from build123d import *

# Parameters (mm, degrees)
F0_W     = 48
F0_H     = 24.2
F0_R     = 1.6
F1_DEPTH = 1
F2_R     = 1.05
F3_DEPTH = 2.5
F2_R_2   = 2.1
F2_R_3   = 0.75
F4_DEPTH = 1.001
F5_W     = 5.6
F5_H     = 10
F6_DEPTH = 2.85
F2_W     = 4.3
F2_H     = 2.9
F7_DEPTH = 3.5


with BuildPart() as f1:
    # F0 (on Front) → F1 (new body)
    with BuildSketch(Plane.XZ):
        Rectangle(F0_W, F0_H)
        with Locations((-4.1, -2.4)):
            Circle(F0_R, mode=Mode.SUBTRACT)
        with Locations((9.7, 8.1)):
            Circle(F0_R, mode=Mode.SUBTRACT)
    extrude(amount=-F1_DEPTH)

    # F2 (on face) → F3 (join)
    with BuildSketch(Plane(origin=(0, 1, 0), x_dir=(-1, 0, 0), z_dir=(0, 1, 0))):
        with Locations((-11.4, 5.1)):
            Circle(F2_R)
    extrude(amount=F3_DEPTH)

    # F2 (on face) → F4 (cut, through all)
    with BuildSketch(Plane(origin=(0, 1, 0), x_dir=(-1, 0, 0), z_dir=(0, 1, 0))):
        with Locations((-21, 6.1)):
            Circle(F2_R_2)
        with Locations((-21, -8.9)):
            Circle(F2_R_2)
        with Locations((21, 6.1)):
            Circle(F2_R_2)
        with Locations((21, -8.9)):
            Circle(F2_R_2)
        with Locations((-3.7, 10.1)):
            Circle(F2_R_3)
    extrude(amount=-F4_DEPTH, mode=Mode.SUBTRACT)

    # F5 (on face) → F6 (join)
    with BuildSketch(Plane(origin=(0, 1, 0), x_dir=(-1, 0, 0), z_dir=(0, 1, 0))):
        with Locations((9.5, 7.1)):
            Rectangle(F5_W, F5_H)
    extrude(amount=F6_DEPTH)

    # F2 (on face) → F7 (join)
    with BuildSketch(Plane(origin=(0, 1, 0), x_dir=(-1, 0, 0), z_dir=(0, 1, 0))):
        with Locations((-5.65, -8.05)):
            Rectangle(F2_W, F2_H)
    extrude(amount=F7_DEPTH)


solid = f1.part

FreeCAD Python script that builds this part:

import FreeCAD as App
import Part
import Sketcher
from FreeCAD import Vector


def add_polygon(sketch, points):
    """Adds a closed chain of lines whose ends are joined by coincident constraints."""
    first, n = sketch.GeometryCount, len(points)
    for a, b in zip(points, points[1:] + points[:1]):
        sketch.addGeometry(Part.LineSegment(App.Vector(*a, 0), App.Vector(*b, 0)), False)
    for i in range(n):
        sketch.addConstraint(Sketcher.Constraint("Coincident", first + i, 2, first + (i + 1) % n, 1))

doc = App.newDocument("Part")
params = doc.addObject("Spreadsheet::Sheet", "Params")
for row, (alias, value) in enumerate([
    ("sketch1_diameter", "3.2 mm"),
    ("sketch1_width", "48 mm"),
    ("sketch1_height", "24.2 mm"),
    ("pad1_length", "1 mm"),
    ("sketch2_diameter", "2.1 mm"),
    ("pad2_length", "2.5 mm"),
    ("sketch3_diameter", "4.2 mm"),
    ("sketch3_diameter2", "1.5 mm"),
    ("sketch4_height", "10 mm"),
    ("sketch4_width", "5.6 mm"),
    ("pad3_length", "2.85 mm"),
    ("sketch5_width", "4.3 mm"),
    ("sketch5_height", "2.9 mm"),
    ("pad4_length", "3.5 mm"),
], start=1):
    params.set(f"A{row}", alias)
    params.set(f"B{row}", "=" + value)
    params.setAlias(f"B{row}", alias)

body = doc.addObject("PartDesign::Body", "Body")

# Sketch on XZ plane
sketch1 = doc.addObject("Sketcher::SketchObject", "Sketch")
body.addObject(sketch1)
sketch1.AttachmentSupport = (doc.XZ_Plane, [""])
sketch1.MapMode = "FlatFace"
add_polygon(sketch1, [(-24, 12.1), (-24, -12.1), (24, -12.1), (24, 12.1)])  # lines 0-3
sketch1.addGeometry(Part.Circle(Vector(-4.1, -2.4, 0), Vector(0, 0, 1), 1.6), False)  # 4
sketch1.addGeometry(Part.Circle(Vector(9.7, 8.1, 0), Vector(0, 0, 1), 1.6), False)  # 5
sketch1.addConstraint([
    Sketcher.Constraint("Vertical", 0),
    Sketcher.Constraint("Horizontal", 1),
    Sketcher.Constraint("Vertical", 2),
    Sketcher.Constraint("Horizontal", 3),
    Sketcher.Constraint("Equal", 4, 5),
    Sketcher.Constraint("Symmetric", 0, 2, 2, 2, -1, 1),
    Sketcher.Constraint("Diameter", 4, 3.2),
    Sketcher.Constraint("DistanceX", 1, 1, 1, 2, 48.0),
    Sketcher.Constraint("DistanceY", 0, 2, 0, 1, 24.2),
    Sketcher.Constraint("DistanceY", 5, 3, 2, 2, 4.0),
    Sketcher.Constraint("DistanceX", 4, 3, -1, 1, 4.1),
    Sketcher.Constraint("DistanceY", 4, 3, -1, 1, 2.4),
    Sketcher.Constraint("DistanceX", -1, 1, 5, 3, 9.7),
])
sketch1.setExpression("Constraints[10]", "Params.sketch1_diameter")
sketch1.setExpression("Constraints[11]", "Params.sketch1_width")
sketch1.setExpression("Constraints[12]", "Params.sketch1_height")
pad1 = doc.addObject("PartDesign::Pad", "Pad")
body.addObject(pad1)
pad1.Profile = sketch1
pad1.setExpression("Length", "Params.pad1_length")
pad1.Reversed = True

# Sketch on XZ plane
sketch2 = doc.addObject("Sketcher::SketchObject", "Sketch001")
body.addObject(sketch2)
sketch2.AttachmentSupport = (doc.XZ_Plane, [""])
sketch2.MapMode = "FlatFace"
sketch2.AttachmentOffset = App.Placement(Vector(0, 0, -1), App.Rotation())
sketch2.addGeometry(Part.Circle(Vector(11.4, 5.1, 0), Vector(0, 0, 1), 1.1), False)
sketch2.addConstraint([
    Sketcher.Constraint("Diameter", 0, 2.1),
    Sketcher.Constraint("DistanceX", -1, 1, 0, 3, 11.4),
    Sketcher.Constraint("DistanceY", -1, 1, 0, 3, 5.1),
])
sketch2.setExpression("Constraints[0]", "Params.sketch2_diameter")
pad2 = doc.addObject("PartDesign::Pad", "Pad001")
body.addObject(pad2)
pad2.Profile = sketch2
pad2.setExpression("Length", "Params.pad2_length")
pad2.Reversed = True

# Sketch on XZ plane
sketch3 = doc.addObject("Sketcher::SketchObject", "Sketch002")
body.addObject(sketch3)
sketch3.AttachmentSupport = (doc.XZ_Plane, [""])
sketch3.MapMode = "FlatFace"
sketch3.AttachmentOffset = App.Placement(Vector(0, 0, -1), App.Rotation())
sketch3.addGeometry([
    Part.Circle(Vector(21, 6.1, 0), Vector(0, 0, 1), 2.1),  # 0
    Part.Circle(Vector(21, -8.9, 0), Vector(0, 0, 1), 2.1),  # 1
    Part.Circle(Vector(-21, 6.1, 0), Vector(0, 0, 1), 2.1),  # 2
    Part.Circle(Vector(-21, -8.9, 0), Vector(0, 0, 1), 2.1),  # 3
    Part.Circle(Vector(3.7, 10.1, 0), Vector(0, 0, 1), 0.8),  # 4
], False)
sketch3.addConstraint([
    Sketcher.Constraint("Equal", 0, 1),
    Sketcher.Constraint("Equal", 1, 2),
    Sketcher.Constraint("Equal", 2, 3),
    Sketcher.Constraint("Symmetric", 0, 3, 2, 3, -2),
    Sketcher.Constraint("Symmetric", 1, 3, 3, 3, -2),
    Sketcher.Constraint("Vertical", 0, 3, 1, 3),
    Sketcher.Constraint("Diameter", 0, 4.2),
    Sketcher.Constraint("Diameter", 4, 1.5),
    Sketcher.Constraint("DistanceX", -1, 1, 0, 3, 21.0),
    Sketcher.Constraint("DistanceY", 1, 3, 0, 3, 15.0),
    Sketcher.Constraint("DistanceY", 0, 3, 4, 3, 4.0),
    Sketcher.Constraint("DistanceY", -1, 1, 0, 3, 6.1),
    Sketcher.Constraint("DistanceX", -1, 1, 4, 3, 3.7),
])
sketch3.setExpression("Constraints[6]", "Params.sketch3_diameter")
sketch3.setExpression("Constraints[7]", "Params.sketch3_diameter2")
pocket1 = doc.addObject("PartDesign::Pocket", "Pocket")
body.addObject(pocket1)
pocket1.Profile = sketch3
pocket1.Type = "ThroughAll"
pocket1.Reversed = True

# Sketch on XZ plane
sketch4 = doc.addObject("Sketcher::SketchObject", "Sketch003")
body.addObject(sketch4)
sketch4.AttachmentSupport = (doc.XZ_Plane, [""])
sketch4.MapMode = "FlatFace"
sketch4.AttachmentOffset = App.Placement(Vector(0, 0, -1), App.Rotation())
add_polygon(sketch4, [(-7, 12), (-7, 2), (-12, 2), (-12, 12)])  # lines 0-3
sketch4.addConstraint([
    Sketcher.Constraint("Vertical", 0),
    Sketcher.Constraint("Horizontal", 1),
    Sketcher.Constraint("Vertical", 2),
    Sketcher.Constraint("Horizontal", 3),
    Sketcher.Constraint("DistanceY", 0, 2, 0, 1, 10.0),
    Sketcher.Constraint("DistanceX", 1, 2, 1, 1, 5.6),
    Sketcher.Constraint("DistanceX", 0, 2, -1, 1, 6.7),
    Sketcher.Constraint("DistanceY", -1, 1, 0, 2, 2.1),
])
sketch4.setExpression("Constraints[8]", "Params.sketch4_height")
sketch4.setExpression("Constraints[9]", "Params.sketch4_width")
pad3 = doc.addObject("PartDesign::Pad", "Pad002")
body.addObject(pad3)
pad3.Profile = sketch4
pad3.setExpression("Length", "Params.pad3_length")
pad3.Reversed = True

# Sketch on XZ plane
sketch5 = doc.addObject("Sketcher::SketchObject", "Sketch004")
body.addObject(sketch5)
sketch5.AttachmentSupport = (doc.XZ_Plane, [""])
sketch5.MapMode = "FlatFace"
sketch5.AttachmentOffset = App.Placement(Vector(0, 0, -1), App.Rotation())
add_polygon(sketch5, [(7.8, -6.6), (7.8, -9.5), (3.5, -9.5), (3.5, -6.6)])  # lines 0-3
sketch5.addConstraint([
    Sketcher.Constraint("Vertical", 0),
    Sketcher.Constraint("Horizontal", 1),
    Sketcher.Constraint("Vertical", 2),
    Sketcher.Constraint("Horizontal", 3),
    Sketcher.Constraint("DistanceX", 1, 2, 1, 1, 4.3),
    Sketcher.Constraint("DistanceY", 0, 2, 0, 1, 2.9),
    Sketcher.Constraint("DistanceX", -1, 1, 0, 2, 7.8),
    Sketcher.Constraint("DistanceY", 0, 2, -1, 1, 9.5),
])
sketch5.setExpression("Constraints[8]", "Params.sketch5_width")
sketch5.setExpression("Constraints[9]", "Params.sketch5_height")
pad4 = doc.addObject("PartDesign::Pad", "Pad003")
body.addObject(pad4)
pad4.Profile = sketch5
pad4.setExpression("Length", "Params.pad4_length")
pad4.Reversed = True

doc.recompute()
